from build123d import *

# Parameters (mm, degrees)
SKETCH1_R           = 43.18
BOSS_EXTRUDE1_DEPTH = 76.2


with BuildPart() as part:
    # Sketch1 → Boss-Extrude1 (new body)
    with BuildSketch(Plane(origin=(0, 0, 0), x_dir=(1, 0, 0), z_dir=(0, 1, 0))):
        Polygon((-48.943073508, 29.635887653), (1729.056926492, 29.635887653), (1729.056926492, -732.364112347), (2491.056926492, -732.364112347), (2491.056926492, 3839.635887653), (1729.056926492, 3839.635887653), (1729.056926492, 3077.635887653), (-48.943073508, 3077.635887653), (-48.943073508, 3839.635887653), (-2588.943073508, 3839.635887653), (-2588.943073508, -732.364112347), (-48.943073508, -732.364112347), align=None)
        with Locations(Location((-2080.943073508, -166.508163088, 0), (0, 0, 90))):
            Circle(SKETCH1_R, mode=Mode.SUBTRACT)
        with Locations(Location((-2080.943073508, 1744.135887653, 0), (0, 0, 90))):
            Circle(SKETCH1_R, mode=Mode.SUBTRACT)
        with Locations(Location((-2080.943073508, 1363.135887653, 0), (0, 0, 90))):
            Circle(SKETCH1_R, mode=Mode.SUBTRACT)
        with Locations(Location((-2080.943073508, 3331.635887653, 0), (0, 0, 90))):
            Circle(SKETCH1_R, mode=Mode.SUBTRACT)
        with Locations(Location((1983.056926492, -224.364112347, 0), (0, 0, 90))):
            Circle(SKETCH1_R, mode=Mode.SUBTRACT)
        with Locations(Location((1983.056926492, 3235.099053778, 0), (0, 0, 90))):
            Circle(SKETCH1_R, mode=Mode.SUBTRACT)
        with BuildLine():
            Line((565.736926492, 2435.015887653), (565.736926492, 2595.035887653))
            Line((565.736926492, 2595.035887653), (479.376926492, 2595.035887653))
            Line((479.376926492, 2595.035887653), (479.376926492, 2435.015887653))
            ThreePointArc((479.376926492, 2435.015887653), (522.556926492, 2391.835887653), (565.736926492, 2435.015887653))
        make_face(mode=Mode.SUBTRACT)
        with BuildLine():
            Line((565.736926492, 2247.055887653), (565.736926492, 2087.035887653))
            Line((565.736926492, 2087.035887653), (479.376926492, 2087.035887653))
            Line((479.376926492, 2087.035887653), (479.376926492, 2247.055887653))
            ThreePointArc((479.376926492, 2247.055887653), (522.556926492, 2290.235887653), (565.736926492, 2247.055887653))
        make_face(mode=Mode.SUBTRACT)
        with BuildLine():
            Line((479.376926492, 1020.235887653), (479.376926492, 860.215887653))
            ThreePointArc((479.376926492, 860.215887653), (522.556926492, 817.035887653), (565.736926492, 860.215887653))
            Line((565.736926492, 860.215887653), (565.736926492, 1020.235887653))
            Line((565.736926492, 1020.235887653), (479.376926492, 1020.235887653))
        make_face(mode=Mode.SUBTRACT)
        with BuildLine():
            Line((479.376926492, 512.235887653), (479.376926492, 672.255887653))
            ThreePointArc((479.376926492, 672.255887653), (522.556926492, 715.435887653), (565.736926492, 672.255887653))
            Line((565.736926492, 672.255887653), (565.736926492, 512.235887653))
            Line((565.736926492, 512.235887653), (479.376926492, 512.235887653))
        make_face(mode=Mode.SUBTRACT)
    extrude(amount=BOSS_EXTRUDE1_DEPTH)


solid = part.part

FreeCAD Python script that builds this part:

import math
import FreeCAD as App
import Part
import Sketcher
Q = App.Units.Quantity


def add_polygon(sketch, points):
    """Adds a closed chain of lines whose ends are joined by coincident constraints."""
    first, n = sketch.GeometryCount, len(points)
    for a, b in zip(points, points[1:] + points[:1]):
        sketch.addGeometry(Part.LineSegment(App.Vector(*a, 0), App.Vector(*b, 0)), False)
    for i in range(n):
        sketch.addConstraint(Sketcher.Constraint("Coincident", first + i, 2, first + (i + 1) % n, 1))

doc = App.newDocument("Part")
body = doc.addObject("PartDesign::Body", "Body")

sketch1 = body.newObject("Sketcher::SketchObject", "Sketch")
sketch1.AttachmentSupport = (doc.getObject("XZ_Plane"), [""])
sketch1.MapMode = "FlatFace"
add_polygon(sketch1, [(-49, -30), (1729, -30), (1729, 732), (2491, 732), (2491, -3840), (1729, -3840), (1729, -3078), (-49, -3078), (-49, -3840), (-2589, -3840), (-2589, 732), (-49, 732)])
sketch1.addGeometry(Part.Circle(App.Vector(-2081, 167, 0), App.Vector(0, 0, 1), 43), False)
sketch1.addGeometry(Part.Circle(App.Vector(-2081, -1363, 0), App.Vector(0, 0, 1), 43), False)
sketch1.addGeometry(Part.LineSegment(App.Vector(566, -512, 0), App.Vector(479, -512, 0)), False)
sketch1.addGeometry(Part.LineSegment(App.Vector(479, -512, 0), App.Vector(479, -672, 0)), False)
sketch1.addGeometry(Part.ArcOfCircle(Part.Circle(App.Vector(523, -672, 0), App.Vector(0, 0, 1), 43), math.radians(180), math.radians(360)), False)
sketch1.addGeometry(Part.LineSegment(App.Vector(566, -672, 0), App.Vector(566, -512, 0)), False)
sketch1.addGeometry(Part.Circle(App.Vector(1983, 224, 0), App.Vector(0, 0, 1), 43), False)
sketch1.addGeometry(Part.LineSegment(App.Vector(479, -860, 0), App.Vector(479, -1020, 0)), False)
sketch1.addGeometry(Part.LineSegment(App.Vector(479, -1020, 0), App.Vector(566, -1020, 0)), False)
sketch1.addGeometry(Part.LineSegment(App.Vector(566, -1020, 0), App.Vector(566, -860, 0)), False)
sketch1.addGeometry(Part.ArcOfCircle(Part.Circle(App.Vector(523, -860, 0), App.Vector(0, 0, 1), 43), math.radians(0), math.radians(180)), False)
sketch1.addGeometry(Part.Circle(App.Vector(-2081, -1744, 0), App.Vector(0, 0, 1), 43), False)
sketch1.addGeometry(Part.Circle(App.Vector(-2081, -3332, 0), App.Vector(0, 0, 1), 43), False)
sketch1.addGeometry(Part.ArcOfCircle(Part.Circle(App.Vector(523, -2247, 0), App.Vector(0, 0, 1), 43), math.radians(180), math.radians(360)), False)
sketch1.addGeometry(Part.LineSegment(App.Vector(566, -2247, 0), App.Vector(566, -2087, 0)), False)
sketch1.addGeometry(Part.LineSegment(App.Vector(566, -2087, 0), App.Vector(479, -2087, 0)), False)
sketch1.addGeometry(Part.LineSegment(App.Vector(479, -2087, 0), App.Vector(479, -2247, 0)), False)
sketch1.addGeometry(Part.LineSegment(App.Vector(566, -2595, 0), App.Vector(566, -2435, 0)), False)
sketch1.addGeometry(Part.ArcOfCircle(Part.Circle(App.Vector(523, -2435, 0), App.Vector(0, 0, 1), 43), math.radians(0), math.radians(180)), False)
sketch1.addGeometry(Part.LineSegment(App.Vector(479, -2435, 0), App.Vector(479, -2595, 0)), False)
sketch1.addGeometry(Part.LineSegment(App.Vector(479, -2595, 0), App.Vector(566, -2595, 0)), False)
sketch1.addGeometry(Part.Circle(App.Vector(1983, -3235, 0), App.Vector(0, 0, 1), 43), False)
sketch1.addConstraint([
    Sketcher.Constraint("Coincident", 14, 2, 15, 1),
    Sketcher.Constraint("Tangent", 15, 2, 16, 1),
    Sketcher.Constraint("Tangent", 16, 2, 17, 1),
    Sketcher.Constraint("Coincident", 17, 2, 14, 1),
    Sketcher.Constraint("Coincident", 19, 2, 20, 1),
    Sketcher.Constraint("Coincident", 20, 2, 21, 1),
    Sketcher.Constraint("Tangent", 21, 2, 22, 1),
    Sketcher.Constraint("Tangent", 22, 2, 19, 1),
    Sketcher.Constraint("Tangent", 25, 2, 26, 1),
    Sketcher.Constraint("Coincident", 26, 2, 27, 1),
    Sketcher.Constraint("Coincident", 27, 2, 28, 1),
    Sketcher.Constraint("Tangent", 28, 2, 25, 1),
    Sketcher.Constraint("Tangent", 29, 2, 30, 1),
    Sketcher.Constraint("Tangent", 30, 2, 31, 1),
    Sketcher.Constraint("Coincident", 31, 2, 32, 1),
    Sketcher.Constraint("Coincident", 32, 2, 29, 1),
    Sketcher.Constraint("Horizontal", 0),
    Sketcher.Constraint("Vertical", 1),
    Sketcher.Constraint("Horizontal", 2),
    Sketcher.Constraint("Vertical", 3),
    Sketcher.Constraint("Horizontal", 4),
    Sketcher.Constraint("Vertical", 5),
    Sketcher.Constraint("Horizontal", 6),
    Sketcher.Constraint("Vertical", 7),
    Sketcher.Constraint("Horizontal", 8),
    Sketcher.Constraint("Vertical", 9),
    Sketcher.Constraint("Horizontal", 10),
    Sketcher.Constraint("Vertical", 11),
    Sketcher.Constraint("Horizontal", 14),
    Sketcher.Constraint("Vertical", 15),
    Sketcher.Constraint("Vertical", 17),
    Sketcher.Constraint("Vertical", 19),
    Sketcher.Constraint("Horizontal", 20),
    Sketcher.Constraint("Vertical", 21),
    Sketcher.Constraint("Vertical", 26),
    Sketcher.Constraint("Horizontal", 27),
    Sketcher.Constraint("Vertical", 28),
    Sketcher.Constraint("Vertical", 29),
    Sketcher.Constraint("Vertical", 31),
    Sketcher.Constraint("Horizontal", 32),
    Sketcher.Constraint("Equal", 12, 13),
    Sketcher.Constraint("Equal", 13, 16),
    Sketcher.Constraint("Equal", 16, 18),
    Sketcher.Constraint("Equal", 18, 22),
    Sketcher.Constraint("Equal", 22, 23),
    Sketcher.Constraint("Equal", 23, 24),
    Sketcher.Constraint("Equal", 24, 25),
    Sketcher.Constraint("Equal", 25, 30),
    Sketcher.Constraint("Equal", 30, 33),
    Sketcher.Constraint("Horizontal", 4, 2, 7, 2),
    Sketcher.Constraint("Horizontal", 2, 2, 9, 2),
    Sketcher.Constraint("Vertical", 12, 3, 13, 3),
    Sketcher.Constraint("Vertical", 16, 3, 22, 3),
    Sketcher.Constraint("Vertical", 13, 3, 23, 3),
    Sketcher.Constraint("Vertical", 23, 3, 24, 3),
    Sketcher.Constraint("Vertical", 22, 3, 25, 3),
    Sketcher.Constraint("Vertical", 25, 3, 30, 3),
    Sketcher.Constraint("Vertical", 18, 3, 33, 3),
    Sketcher.Constraint("Vertical", 1, 2, 4, 2),
    Sketcher.Constraint("Vertical", 7, 2, 10, 2),
    Sketcher.Constraint("Equal", 4, 1),
    Sketcher.Constraint("Equal", 1, 5),
    Sketcher.Constraint("Equal", 17, 19),
    Sketcher.Constraint("Equal", 21, 26),
    Sketcher.Constraint("Equal", 28, 29),
    Sketcher.Constraint("Diameter", 12, Q("3.4 in")),
    Sketcher.Constraint("DistanceX", 0, 1, 0, 2, Q("70 in")),
    Sketcher.Constraint("DistanceX", 2, 1, 2, 2, Q("30 in")),
    Sketcher.Constraint("DistanceX", 8, 2, 8, 1, Q("100 in")),
    Sketcher.Constraint("DistanceY", 3, 2, 3, 1, Q("180 in")),
    Sketcher.Constraint("DistanceY", 15, 2, 15, 1, Q("6.3 in")),
    Sketcher.Constraint("DistanceX", 12, 3, 18, 3, Q("160 in")),
    Sketcher.Constraint("DistanceY", 23, 3, 13, 3, Q("15 in")),
    Sketcher.Constraint("DistanceY", 25, 3, 16, 3, Q("62 in")),
    Sketcher.Constraint("DistanceY", 30, 3, 22, 3, Q("62 in")),
    Sketcher.Constraint("DistanceX", 0, 2, 18, 3, Q("10 in")),
    Sketcher.Constraint("DistanceY", 0, 2, 18, 3, Q("10 in")),
    Sketcher.Constraint("DistanceY", 8, 2, 24, 3, Q("20 in")),
    Sketcher.Constraint("DistanceY", 14, 2, 11, 2, Q("19 in")),
    Sketcher.Constraint("DistanceY", 19, 2, 14, 2, Q("20 in")),
    Sketcher.Constraint("DistanceX", 13, 3, 16, 3, Q("102.5 in")),
    Sketcher.Constraint("DistanceY", 13, 3, 16, 3, Q("27.2 in")),
    Sketcher.Constraint("DistanceY", 13, 3, 12, 3, Q("1529.644051 mm")),
    Sketcher.Constraint("DistanceX", 12, 3, -1, 1, Q("2080.943074 mm")),
    Sketcher.Constraint("DistanceY", -1, 1, 12, 3, Q("166.508163 mm")),
    Sketcher.Constraint("DistanceY", 33, 3, -1, 1, Q("3235.099054 mm")),
])
pad1 = body.newObject("PartDesign::Pad", "Pad")
pad1.Profile = sketch1
pad1.Length = Q("3 in")
pad1.Reversed = True

doc.recompute()
